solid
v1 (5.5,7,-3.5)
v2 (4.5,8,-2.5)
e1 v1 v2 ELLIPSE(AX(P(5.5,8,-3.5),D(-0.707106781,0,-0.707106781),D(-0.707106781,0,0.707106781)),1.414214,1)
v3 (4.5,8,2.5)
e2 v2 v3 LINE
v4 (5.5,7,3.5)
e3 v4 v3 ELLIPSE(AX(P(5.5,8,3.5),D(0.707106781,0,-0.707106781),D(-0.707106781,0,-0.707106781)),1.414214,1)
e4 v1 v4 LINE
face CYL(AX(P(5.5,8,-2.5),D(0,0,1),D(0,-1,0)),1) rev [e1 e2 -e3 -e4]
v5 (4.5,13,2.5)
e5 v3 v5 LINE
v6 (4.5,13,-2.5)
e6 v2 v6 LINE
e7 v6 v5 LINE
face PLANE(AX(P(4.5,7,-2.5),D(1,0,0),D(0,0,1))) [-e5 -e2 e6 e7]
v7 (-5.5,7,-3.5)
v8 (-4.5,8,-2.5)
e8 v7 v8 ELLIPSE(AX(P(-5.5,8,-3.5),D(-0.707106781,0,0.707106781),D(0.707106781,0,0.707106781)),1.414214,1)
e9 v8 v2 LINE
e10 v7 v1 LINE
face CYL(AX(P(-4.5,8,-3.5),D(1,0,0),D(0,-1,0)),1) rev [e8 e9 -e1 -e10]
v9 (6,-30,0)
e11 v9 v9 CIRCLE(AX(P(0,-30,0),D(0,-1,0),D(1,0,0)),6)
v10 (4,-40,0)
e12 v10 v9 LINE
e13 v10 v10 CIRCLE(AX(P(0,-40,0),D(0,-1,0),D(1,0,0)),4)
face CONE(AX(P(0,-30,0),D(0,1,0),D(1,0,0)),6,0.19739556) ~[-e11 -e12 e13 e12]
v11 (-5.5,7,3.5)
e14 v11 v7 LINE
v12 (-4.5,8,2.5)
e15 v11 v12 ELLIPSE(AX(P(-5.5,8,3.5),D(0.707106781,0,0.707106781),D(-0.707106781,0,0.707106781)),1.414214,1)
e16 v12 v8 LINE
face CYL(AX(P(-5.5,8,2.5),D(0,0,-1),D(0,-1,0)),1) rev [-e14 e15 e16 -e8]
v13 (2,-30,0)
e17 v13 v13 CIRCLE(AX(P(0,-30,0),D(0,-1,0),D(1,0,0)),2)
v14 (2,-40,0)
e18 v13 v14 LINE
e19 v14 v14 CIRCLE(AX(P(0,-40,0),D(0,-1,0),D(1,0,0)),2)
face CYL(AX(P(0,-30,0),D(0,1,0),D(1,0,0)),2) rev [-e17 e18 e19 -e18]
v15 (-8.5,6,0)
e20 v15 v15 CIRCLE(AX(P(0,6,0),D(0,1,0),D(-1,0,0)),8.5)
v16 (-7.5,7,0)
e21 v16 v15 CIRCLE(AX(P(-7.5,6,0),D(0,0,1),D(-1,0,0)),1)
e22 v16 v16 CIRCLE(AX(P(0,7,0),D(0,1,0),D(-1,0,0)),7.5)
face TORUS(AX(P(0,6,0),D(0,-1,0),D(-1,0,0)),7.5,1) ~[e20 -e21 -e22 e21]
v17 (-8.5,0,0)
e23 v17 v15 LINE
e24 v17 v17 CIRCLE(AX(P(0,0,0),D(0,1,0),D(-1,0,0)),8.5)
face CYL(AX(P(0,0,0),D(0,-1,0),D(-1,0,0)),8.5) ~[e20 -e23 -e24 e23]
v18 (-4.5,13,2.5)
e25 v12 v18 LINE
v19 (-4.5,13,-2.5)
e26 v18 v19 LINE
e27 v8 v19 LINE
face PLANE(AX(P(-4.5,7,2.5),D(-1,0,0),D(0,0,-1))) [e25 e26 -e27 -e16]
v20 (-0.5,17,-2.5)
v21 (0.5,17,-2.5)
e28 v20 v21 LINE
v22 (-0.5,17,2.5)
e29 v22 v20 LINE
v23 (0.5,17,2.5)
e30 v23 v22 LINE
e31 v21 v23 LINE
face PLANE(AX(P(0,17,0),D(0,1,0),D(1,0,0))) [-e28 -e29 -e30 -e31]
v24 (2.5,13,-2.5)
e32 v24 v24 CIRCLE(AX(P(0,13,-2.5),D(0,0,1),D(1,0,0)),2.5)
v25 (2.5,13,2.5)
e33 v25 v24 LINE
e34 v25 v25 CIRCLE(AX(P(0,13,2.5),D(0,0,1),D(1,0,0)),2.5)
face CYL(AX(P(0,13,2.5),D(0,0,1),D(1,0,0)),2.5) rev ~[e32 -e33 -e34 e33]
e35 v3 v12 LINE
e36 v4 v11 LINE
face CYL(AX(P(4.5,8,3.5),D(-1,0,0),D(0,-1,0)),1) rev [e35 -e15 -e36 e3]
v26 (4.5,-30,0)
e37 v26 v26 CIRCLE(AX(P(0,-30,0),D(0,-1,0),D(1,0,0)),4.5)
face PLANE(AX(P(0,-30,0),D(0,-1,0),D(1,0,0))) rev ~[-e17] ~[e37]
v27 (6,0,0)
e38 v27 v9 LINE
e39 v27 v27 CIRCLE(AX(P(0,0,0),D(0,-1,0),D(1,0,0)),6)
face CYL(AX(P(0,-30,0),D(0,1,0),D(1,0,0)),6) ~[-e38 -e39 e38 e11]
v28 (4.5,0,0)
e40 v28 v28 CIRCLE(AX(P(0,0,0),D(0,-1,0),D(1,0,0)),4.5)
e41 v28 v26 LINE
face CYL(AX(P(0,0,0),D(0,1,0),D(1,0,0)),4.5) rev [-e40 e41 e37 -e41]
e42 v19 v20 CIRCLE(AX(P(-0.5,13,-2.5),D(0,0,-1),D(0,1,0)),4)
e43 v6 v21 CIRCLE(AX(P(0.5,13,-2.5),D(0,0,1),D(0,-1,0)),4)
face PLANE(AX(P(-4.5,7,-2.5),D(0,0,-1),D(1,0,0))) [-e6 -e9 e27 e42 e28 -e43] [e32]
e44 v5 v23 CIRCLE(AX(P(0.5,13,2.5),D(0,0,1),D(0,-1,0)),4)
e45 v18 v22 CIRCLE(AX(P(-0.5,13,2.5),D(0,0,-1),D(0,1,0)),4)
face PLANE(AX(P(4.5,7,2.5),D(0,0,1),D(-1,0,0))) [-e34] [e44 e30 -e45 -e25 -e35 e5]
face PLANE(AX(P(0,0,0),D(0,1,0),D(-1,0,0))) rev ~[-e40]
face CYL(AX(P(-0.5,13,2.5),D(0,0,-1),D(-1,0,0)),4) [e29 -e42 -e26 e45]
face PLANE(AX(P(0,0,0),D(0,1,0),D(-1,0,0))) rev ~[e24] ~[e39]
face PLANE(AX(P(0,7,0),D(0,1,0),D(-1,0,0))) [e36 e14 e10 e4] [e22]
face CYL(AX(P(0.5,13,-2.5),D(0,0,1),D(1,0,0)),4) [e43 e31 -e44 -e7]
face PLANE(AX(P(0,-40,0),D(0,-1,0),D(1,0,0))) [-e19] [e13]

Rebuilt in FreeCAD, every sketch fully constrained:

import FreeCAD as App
import Part
import Sketcher
Q = App.Units.Quantity


def edges_at(feature, points):
    """Names of the edges that pass closest to the given points."""
    edges = feature.Shape.Edges
    near = lambda p: min(range(len(edges)), key=lambda i: edges[i].distToShape(Part.Vertex(*p))[0])
    return sorted({f"Edge{near(p) + 1}" for p in points})

doc = App.newDocument("Part")
params = doc.addObject("Spreadsheet::Sheet", "Params")
for row, (alias, value) in enumerate([
    ("sketch1_diameter", "17 mm"),
    ("pad1_length", "7 mm"),
    ("sketch2_width", "9 mm"),
    ("sketch2_height", "5 mm"),
    ("pad2_length", "10 mm"),
    ("fillet_radius", "4 mm"),
    ("sketch3_diameter", "5 mm"),
    ("pocket1_length", "10 mm"),
    ("fillet2_radius", "1 mm"),
    ("fillet3_radius", "1 mm"),
    ("sketch4_diameter", "12 mm"),
    ("sketch4_diameter2", "9 mm"),
    ("pad3_length", "30 mm"),
    ("sketch5_diameter", "4 mm"),
    ("sketch5_diameter2", "12 mm"),
    ("pad4_length", "10 mm"),
    ("chamfer_size", "2 mm"),
    ("chamfer_size2", "10 mm"),
], start=1):
    params.set(f"A{row}", alias)
    params.set(f"B{row}", "=" + value)
    params.setAlias(f"B{row}", alias)

body = doc.addObject("PartDesign::Body", "Body")

# Sketch on XZ plane
sketch1 = doc.addObject("Sketcher::SketchObject", "Sketch")
body.addObject(sketch1)
sketch1.AttachmentSupport = (doc.XZ_Plane, [""])
sketch1.MapMode = "FlatFace"
sketch1.addGeometry(Part.Circle(App.Vector(0, 0, 0), App.Vector(0, 0, 1), 8), False)
sketch1.addConstraint([
    Sketcher.Constraint("Coincident", 0, 3, -1, 1),
    Sketcher.Constraint("Diameter", 0, Q("17 mm")),
])
sketch1.setExpression("Constraints[1]", "Params.sketch1_diameter")
pad1 = doc.addObject("PartDesign::Pad", "Pad")
body.addObject(pad1)
pad1.Profile = sketch1
pad1.setExpression("Length", "Params.pad1_length")
pad1.Reversed = True

# Sketch on XZ plane
sketch2 = doc.addObject("Sketcher::SketchObject", "Sketch001")
body.addObject(sketch2)
sketch2.AttachmentSupport = (doc.XZ_Plane, [""])
sketch2.MapMode = "FlatFace"
sketch2.AttachmentOffset = App.Placement(App.Vector(0, 0, -7), App.Rotation())
sketch2.addGeometry([
    Part.LineSegment(App.Vector(-4, 2, 0), App.Vector(4, 2, 0)),
    Part.LineSegment(App.Vector(4, 2, 0), App.Vector(4, -2, 0)),
    Part.LineSegment(App.Vector(4, -2, 0), App.Vector(-4, -2, 0)),
    Part.LineSegment(App.Vector(-4, -2, 0), App.Vector(-4, 2, 0)),
], False)
sketch2.addConstraint([
    Sketcher.Constraint("Coincident", 0, 2, 1, 1),
    Sketcher.Constraint("Coincident", 1, 2, 2, 1),
    Sketcher.Constraint("Coincident", 2, 2, 3, 1),
    Sketcher.Constraint("Coincident", 3, 2, 0, 1),
    Sketcher.Constraint("Horizontal", 0),
    Sketcher.Constraint("Vertical", 1),
    Sketcher.Constraint("Horizontal", 2),
    Sketcher.Constraint("Vertical", 3),
    Sketcher.Constraint("Symmetric", 0, 2, 2, 2, -1, 1),
    Sketcher.Constraint("DistanceX", 0, 1, 0, 2, Q("9 mm")),
    Sketcher.Constraint("DistanceY", 1, 2, 1, 1, Q("5 mm")),
])
sketch2.setExpression("Constraints[9]", "Params.sketch2_width")
sketch2.setExpression("Constraints[10]", "Params.sketch2_height")
pad2 = doc.addObject("PartDesign::Pad", "Pad001")
body.addObject(pad2)
pad2.Profile = sketch2
pad2.setExpression("Length", "Params.pad2_length")
pad2.Reversed = True
doc.recompute()

fillet = doc.addObject("PartDesign::Fillet", "Fillet")
body.addObject(fillet)
fillet.Base = (pad2, edges_at(pad2, [(4.5, 17, 0), (-4.5, 17, 0)]))
fillet.setExpression("Radius", "Params.fillet_radius")

# Sketch on XY plane
sketch3 = doc.addObject("Sketcher::SketchObject", "Sketch002")
body.addObject(sketch3)
sketch3.AttachmentSupport = (doc.XY_Plane, [""])
sketch3.MapMode = "FlatFace"
sketch3.AttachmentOffset = App.Placement(App.Vector(0, 0, 2.5), App.Rotation())
sketch3.addGeometry(Part.Circle(App.Vector(0, 13, 0), App.Vector(0, 0, 1), 2.5), False)
sketch3.addConstraint([
    Sketcher.Constraint("PointOnObject", 0, 3, -2),
    Sketcher.Constraint("Diameter", 0, Q("5 mm")),
    Sketcher.Constraint("DistanceY", -1, 1, 0, 3, Q("13 mm")),
])
sketch3.setExpression("Constraints[1]", "Params.sketch3_diameter")
pocket1 = doc.addObject("PartDesign::Pocket", "Pocket")
body.addObject(pocket1)
pocket1.Profile = sketch3
pocket1.setExpression("Length", "Params.pocket1_length")
doc.recompute()

fillet2 = doc.addObject("PartDesign::Fillet", "Fillet001")
body.addObject(fillet2)
fillet2.Base = (pocket1, edges_at(pocket1, [(8.5, 7, 0)]))
fillet2.setExpression("Radius", "Params.fillet2_radius")
doc.recompute()

fillet3 = doc.addObject("PartDesign::Fillet", "Fillet002")
body.addObject(fillet3)
fillet3.Base = (fillet2, edges_at(fillet2, [
    (0, 7, 2.5),
    (4.5, 7, 0),
    (0, 7, -2.5),
    (-4.5, 7, 0),
]))
fillet3.setExpression("Radius", "Params.fillet3_radius")

# Sketch on XZ plane
sketch4 = doc.addObject("Sketcher::SketchObject", "Sketch003")
body.addObject(sketch4)
sketch4.AttachmentSupport = (doc.XZ_Plane, [""])
sketch4.MapMode = "FlatFace"
sketch4.addGeometry([
    Part.Circle(App.Vector(0, 0, 0), App.Vector(0, 0, 1), 6),
    Part.Circle(App.Vector(0, 0, 0), App.Vector(0, 0, 1), 4.5),
], False)
sketch4.addConstraint([
    Sketcher.Constraint("Coincident", 0, 3, -1, 1),
    Sketcher.Constraint("Coincident", 1, 3, -1, 1),
    Sketcher.Constraint("Diameter", 0, Q("12 mm")),
    Sketcher.Constraint("Diameter", 1, Q("9 mm")),
])
sketch4.setExpression("Constraints[2]", "Params.sketch4_diameter")
sketch4.setExpression("Constraints[3]", "Params.sketch4_diameter2")
pad3 = doc.addObject("PartDesign::Pad", "Pad002")
body.addObject(pad3)
pad3.Profile = sketch4
pad3.setExpression("Length", "Params.pad3_length")

# Sketch on XZ plane
sketch5 = doc.addObject("Sketcher::SketchObject", "Sketch004")
body.addObject(sketch5)
sketch5.AttachmentSupport = (doc.XZ_Plane, [""])
sketch5.MapMode = "FlatFace"
sketch5.AttachmentOffset = App.Placement(App.Vector(0, 0, 30), App.Rotation())
sketch5.addGeometry([
    Part.Circle(App.Vector(0, 0, 0), App.Vector(0, 0, 1), 6),
    Part.Circle(App.Vector(0, 0, 0), App.Vector(0, 0, 1), 2),
], False)
sketch5.addConstraint([
    Sketcher.Constraint("Coincident", 0, 3, -1, 1),
    Sketcher.Constraint("Coincident", 1, 3, -1, 1),
    Sketcher.Constraint("Diameter", 1, Q("4 mm")),
    Sketcher.Constraint("Diameter", 0, Q("12 mm")),
])
sketch5.setExpression("Constraints[2]", "Params.sketch5_diameter")
sketch5.setExpression("Constraints[3]", "Params.sketch5_diameter2")
pad4 = doc.addObject("PartDesign::Pad", "Pad003")
body.addObject(pad4)
pad4.Profile = sketch5
pad4.setExpression("Length", "Params.pad4_length")
doc.recompute()

chamfer = doc.addObject("PartDesign::Chamfer", "Chamfer")
body.addObject(chamfer)
chamfer.Base = (pad4, edges_at(pad4, [(-6, -40, 0)]))
chamfer.ChamferType = "Two distances"
chamfer.setExpression("Size", "Params.chamfer_size")
chamfer.setExpression("Size2", "Params.chamfer_size2")
chamfer.FlipDirection = True

doc.recompute()
